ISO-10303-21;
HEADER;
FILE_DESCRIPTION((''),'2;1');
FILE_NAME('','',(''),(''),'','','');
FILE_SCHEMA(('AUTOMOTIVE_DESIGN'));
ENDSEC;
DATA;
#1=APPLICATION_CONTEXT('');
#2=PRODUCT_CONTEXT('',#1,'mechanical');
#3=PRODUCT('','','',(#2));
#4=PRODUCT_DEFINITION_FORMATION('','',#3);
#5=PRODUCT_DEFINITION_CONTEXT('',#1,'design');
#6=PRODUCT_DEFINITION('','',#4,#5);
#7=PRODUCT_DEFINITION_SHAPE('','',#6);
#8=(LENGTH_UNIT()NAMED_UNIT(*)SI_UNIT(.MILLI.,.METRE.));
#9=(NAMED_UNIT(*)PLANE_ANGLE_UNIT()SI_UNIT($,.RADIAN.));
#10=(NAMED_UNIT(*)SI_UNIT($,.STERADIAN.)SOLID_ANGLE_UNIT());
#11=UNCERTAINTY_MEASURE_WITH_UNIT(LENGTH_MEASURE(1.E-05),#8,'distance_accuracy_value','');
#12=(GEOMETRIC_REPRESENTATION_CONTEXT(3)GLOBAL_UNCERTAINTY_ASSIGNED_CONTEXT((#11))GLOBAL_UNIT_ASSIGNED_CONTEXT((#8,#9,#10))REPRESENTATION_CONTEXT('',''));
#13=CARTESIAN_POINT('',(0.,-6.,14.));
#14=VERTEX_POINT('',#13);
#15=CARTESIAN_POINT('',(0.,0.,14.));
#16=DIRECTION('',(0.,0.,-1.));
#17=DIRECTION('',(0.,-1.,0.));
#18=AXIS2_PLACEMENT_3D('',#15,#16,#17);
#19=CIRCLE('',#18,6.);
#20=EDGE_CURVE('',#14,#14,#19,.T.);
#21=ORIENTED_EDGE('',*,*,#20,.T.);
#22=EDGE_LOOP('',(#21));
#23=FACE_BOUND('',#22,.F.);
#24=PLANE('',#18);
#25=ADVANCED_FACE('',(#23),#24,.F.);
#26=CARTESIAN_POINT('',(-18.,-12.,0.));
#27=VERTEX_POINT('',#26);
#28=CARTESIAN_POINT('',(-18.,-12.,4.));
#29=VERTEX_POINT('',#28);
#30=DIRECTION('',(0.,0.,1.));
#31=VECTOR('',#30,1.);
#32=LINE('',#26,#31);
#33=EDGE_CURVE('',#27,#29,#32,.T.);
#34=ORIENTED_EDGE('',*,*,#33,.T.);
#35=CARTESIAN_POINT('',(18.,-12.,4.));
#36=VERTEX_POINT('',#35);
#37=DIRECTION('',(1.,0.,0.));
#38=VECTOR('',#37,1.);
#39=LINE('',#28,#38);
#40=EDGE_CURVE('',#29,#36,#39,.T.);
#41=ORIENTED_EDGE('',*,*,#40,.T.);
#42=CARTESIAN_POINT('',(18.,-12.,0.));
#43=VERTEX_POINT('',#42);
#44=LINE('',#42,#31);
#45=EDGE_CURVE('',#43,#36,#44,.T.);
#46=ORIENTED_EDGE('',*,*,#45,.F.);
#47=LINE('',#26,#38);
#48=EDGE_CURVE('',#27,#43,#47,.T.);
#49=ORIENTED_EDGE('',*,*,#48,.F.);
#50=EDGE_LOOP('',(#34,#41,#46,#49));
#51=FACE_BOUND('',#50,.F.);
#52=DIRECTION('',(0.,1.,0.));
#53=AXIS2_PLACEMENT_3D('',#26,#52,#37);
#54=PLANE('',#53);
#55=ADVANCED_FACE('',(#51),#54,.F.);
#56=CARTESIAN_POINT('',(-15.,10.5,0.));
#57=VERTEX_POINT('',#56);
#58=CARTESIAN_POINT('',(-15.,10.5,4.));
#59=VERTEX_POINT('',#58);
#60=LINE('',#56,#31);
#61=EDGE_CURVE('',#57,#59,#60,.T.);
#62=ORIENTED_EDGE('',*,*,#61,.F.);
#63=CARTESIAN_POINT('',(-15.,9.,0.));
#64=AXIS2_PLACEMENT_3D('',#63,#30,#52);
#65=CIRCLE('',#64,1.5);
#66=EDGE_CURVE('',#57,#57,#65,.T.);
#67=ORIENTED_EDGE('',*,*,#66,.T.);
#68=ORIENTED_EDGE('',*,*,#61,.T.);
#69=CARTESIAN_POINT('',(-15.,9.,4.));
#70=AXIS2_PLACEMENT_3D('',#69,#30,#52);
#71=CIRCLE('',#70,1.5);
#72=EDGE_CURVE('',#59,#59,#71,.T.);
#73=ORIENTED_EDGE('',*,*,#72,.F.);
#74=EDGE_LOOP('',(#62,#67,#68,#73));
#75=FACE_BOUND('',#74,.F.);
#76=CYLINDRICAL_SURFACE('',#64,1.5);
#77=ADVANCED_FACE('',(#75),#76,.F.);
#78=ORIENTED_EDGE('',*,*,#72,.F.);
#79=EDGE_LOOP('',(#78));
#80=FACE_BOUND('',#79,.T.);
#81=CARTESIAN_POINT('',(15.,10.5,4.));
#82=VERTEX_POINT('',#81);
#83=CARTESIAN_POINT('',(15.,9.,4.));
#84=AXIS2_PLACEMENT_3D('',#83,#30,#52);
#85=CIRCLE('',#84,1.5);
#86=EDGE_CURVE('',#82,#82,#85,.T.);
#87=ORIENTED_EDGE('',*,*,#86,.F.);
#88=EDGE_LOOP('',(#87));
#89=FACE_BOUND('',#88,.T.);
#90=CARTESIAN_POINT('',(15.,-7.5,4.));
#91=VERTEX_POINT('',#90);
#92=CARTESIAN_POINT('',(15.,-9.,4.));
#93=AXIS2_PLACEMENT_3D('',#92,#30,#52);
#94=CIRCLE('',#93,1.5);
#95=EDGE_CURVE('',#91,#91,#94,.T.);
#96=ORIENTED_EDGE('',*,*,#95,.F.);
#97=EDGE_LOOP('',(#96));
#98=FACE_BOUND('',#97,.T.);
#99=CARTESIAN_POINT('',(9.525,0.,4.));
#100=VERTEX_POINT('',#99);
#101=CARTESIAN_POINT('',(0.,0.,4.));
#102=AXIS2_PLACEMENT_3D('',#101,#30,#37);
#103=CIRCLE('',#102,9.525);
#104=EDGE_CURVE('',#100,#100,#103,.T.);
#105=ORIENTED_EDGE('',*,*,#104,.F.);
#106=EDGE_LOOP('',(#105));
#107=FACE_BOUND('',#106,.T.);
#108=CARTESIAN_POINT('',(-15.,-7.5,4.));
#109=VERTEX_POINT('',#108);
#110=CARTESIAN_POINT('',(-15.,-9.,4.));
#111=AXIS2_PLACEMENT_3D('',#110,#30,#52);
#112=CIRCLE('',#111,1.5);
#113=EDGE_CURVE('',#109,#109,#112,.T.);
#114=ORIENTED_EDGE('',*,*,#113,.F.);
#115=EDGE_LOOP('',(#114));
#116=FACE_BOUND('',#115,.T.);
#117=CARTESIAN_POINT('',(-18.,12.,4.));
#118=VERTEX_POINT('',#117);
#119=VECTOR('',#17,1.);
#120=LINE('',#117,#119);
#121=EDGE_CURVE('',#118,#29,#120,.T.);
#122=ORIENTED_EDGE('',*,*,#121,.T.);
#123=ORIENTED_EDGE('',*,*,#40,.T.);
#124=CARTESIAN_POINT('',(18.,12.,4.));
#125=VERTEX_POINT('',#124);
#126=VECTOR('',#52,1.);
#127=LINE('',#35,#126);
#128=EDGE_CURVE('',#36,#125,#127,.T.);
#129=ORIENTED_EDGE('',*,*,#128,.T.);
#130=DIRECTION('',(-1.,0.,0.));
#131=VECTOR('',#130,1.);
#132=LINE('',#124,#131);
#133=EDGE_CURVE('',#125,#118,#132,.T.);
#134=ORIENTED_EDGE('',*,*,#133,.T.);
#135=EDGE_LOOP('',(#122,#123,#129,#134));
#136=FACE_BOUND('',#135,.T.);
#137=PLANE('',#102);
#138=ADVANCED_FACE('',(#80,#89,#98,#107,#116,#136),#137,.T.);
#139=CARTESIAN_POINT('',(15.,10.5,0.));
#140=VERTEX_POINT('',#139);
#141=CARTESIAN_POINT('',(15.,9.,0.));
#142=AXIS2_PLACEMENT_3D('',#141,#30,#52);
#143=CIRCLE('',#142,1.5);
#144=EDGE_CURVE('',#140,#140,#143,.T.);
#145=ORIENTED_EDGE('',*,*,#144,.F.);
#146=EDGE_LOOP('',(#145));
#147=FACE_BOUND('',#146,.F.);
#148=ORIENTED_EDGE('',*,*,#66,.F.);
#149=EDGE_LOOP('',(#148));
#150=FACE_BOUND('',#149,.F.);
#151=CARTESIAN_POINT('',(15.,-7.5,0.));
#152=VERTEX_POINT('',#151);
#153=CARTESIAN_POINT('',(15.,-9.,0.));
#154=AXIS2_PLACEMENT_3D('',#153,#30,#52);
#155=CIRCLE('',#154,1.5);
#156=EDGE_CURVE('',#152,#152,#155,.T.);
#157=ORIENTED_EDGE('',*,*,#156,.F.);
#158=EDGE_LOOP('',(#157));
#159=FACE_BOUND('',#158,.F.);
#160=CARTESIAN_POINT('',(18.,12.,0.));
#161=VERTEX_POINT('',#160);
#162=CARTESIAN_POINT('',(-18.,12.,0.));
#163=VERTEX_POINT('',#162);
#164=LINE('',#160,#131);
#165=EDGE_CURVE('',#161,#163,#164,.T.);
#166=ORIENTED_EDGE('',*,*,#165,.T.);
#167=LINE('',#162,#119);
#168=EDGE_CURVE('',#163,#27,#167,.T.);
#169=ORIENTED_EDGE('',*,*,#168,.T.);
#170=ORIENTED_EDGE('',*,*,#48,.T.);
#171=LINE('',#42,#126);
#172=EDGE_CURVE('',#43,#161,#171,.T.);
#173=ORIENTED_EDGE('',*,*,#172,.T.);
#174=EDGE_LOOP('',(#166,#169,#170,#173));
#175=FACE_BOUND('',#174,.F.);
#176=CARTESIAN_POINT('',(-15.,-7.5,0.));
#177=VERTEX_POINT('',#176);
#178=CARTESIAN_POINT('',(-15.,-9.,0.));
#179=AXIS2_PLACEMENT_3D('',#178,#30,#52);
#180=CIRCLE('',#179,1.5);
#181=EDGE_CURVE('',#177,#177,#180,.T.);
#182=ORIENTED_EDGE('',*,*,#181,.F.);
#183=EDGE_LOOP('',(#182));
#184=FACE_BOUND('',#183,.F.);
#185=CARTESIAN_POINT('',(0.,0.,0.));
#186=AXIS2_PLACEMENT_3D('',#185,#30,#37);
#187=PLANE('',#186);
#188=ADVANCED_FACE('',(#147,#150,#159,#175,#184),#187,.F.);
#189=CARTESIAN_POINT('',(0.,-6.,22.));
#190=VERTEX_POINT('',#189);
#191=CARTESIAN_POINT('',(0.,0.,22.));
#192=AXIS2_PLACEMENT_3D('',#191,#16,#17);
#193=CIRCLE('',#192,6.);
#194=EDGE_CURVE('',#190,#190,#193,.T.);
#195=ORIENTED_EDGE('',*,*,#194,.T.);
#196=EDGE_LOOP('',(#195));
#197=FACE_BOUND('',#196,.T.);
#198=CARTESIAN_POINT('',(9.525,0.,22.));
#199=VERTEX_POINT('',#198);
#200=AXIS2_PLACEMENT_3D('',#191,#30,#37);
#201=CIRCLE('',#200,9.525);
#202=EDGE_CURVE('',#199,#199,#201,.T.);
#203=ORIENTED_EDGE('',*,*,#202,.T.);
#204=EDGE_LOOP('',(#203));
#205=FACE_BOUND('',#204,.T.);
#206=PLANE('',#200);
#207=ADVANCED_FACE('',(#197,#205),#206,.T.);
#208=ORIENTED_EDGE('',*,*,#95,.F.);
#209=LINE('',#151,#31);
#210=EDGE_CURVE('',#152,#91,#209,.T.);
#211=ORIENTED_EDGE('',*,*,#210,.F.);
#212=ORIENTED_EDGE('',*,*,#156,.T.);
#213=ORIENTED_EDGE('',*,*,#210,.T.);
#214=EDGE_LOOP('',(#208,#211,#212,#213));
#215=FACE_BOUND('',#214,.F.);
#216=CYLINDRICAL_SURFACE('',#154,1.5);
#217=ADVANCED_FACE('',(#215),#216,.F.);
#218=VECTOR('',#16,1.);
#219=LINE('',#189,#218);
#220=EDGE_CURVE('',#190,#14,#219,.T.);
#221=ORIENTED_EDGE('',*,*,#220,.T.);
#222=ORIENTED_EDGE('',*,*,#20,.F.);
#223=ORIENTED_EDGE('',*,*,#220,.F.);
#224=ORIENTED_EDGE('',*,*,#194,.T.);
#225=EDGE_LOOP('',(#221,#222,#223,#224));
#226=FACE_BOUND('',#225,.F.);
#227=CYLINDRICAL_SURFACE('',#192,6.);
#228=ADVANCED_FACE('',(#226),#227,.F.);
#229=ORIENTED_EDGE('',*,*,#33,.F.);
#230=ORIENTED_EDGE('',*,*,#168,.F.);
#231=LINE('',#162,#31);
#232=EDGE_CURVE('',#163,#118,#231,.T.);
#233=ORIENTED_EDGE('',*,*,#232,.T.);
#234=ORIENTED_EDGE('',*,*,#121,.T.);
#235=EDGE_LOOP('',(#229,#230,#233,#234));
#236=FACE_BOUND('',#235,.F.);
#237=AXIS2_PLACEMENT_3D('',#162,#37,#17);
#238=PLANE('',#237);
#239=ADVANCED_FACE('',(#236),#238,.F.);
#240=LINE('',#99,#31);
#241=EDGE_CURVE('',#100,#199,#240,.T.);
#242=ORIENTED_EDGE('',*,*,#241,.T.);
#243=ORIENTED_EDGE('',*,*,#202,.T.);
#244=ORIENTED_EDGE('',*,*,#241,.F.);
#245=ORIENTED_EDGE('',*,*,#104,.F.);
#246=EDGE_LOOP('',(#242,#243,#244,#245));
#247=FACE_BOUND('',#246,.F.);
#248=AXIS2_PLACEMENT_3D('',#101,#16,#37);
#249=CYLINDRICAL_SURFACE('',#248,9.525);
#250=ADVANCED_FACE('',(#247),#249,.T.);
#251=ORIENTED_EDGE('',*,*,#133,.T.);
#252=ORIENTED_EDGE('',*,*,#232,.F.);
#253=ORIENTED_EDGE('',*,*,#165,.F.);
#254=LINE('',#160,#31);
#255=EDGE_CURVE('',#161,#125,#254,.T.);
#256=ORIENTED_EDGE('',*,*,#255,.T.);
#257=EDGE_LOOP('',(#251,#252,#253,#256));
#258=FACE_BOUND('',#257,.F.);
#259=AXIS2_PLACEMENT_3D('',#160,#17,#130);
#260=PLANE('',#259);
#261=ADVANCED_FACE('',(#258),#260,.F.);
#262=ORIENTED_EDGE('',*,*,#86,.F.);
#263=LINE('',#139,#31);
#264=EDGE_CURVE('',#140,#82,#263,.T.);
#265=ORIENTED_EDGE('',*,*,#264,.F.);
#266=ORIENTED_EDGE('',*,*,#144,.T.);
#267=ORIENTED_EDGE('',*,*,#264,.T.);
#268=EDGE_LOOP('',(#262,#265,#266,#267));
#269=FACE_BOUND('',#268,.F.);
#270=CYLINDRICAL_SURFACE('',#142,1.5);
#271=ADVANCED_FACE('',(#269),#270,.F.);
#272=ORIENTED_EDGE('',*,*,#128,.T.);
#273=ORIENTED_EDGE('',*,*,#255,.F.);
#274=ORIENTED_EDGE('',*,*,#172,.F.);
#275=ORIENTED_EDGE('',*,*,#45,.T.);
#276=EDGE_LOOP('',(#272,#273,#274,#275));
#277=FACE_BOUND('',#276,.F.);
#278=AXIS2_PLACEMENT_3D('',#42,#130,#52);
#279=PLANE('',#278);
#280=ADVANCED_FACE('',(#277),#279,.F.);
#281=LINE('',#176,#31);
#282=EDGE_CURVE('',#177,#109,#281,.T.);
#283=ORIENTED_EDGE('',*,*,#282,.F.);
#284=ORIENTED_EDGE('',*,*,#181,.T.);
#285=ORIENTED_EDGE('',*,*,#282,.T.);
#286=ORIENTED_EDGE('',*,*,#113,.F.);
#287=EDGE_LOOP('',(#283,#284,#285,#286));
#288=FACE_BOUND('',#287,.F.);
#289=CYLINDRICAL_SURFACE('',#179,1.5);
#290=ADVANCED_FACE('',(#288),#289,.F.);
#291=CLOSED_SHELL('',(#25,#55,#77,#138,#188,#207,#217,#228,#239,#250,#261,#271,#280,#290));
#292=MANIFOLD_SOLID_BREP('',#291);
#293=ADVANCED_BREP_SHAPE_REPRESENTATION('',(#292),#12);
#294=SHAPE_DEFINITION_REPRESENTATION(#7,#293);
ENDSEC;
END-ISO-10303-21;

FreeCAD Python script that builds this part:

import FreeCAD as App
import Part
import Sketcher
from FreeCAD import Vector
Q = App.Units.Quantity


def add_polygon(sketch, points):
    """Adds a closed chain of lines whose ends are joined by coincident constraints."""
    first, n = sketch.GeometryCount, len(points)
    for a, b in zip(points, points[1:] + points[:1]):
        sketch.addGeometry(Part.LineSegment(App.Vector(*a, 0), App.Vector(*b, 0)), False)
    for i in range(n):
        sketch.addConstraint(Sketcher.Constraint("Coincident", first + i, 2, first + (i + 1) % n, 1))

doc = App.newDocument("Part")
body = doc.addObject("PartDesign::Body", "Body")

# Sketch on XY plane
sketch1 = doc.addObject("Sketcher::SketchObject", "Sketch")
body.addObject(sketch1)
sketch1.AttachmentSupport = (doc.XY_Plane, [""])
sketch1.MapMode = "FlatFace"
add_polygon(sketch1, [(-18, 12), (-18, -12), (18, -12), (18, 12)])  # lines 0-3
sketch1.addConstraint([
    Sketcher.Constraint("Vertical", 0),
    Sketcher.Constraint("Horizontal", 1),
    Sketcher.Constraint("Vertical", 2),
    Sketcher.Constraint("Horizontal", 3),
    Sketcher.Constraint("Symmetric", 0, 2, 2, 2, -1, 1),
    Sketcher.Constraint("DistanceX", 1, 1, 1, 2, Q("36 mm")),
    Sketcher.Constraint("DistanceY", 0, 2, 0, 1, Q("24 mm")),
])
pad1 = doc.addObject("PartDesign::Pad", "Pad")
body.addObject(pad1)
pad1.Profile = sketch1
pad1.Length = 4

# Sketch on XY plane
sketch2 = doc.addObject("Sketcher::SketchObject", "Sketch001")
body.addObject(sketch2)
sketch2.AttachmentSupport = (doc.XY_Plane, [""])
sketch2.MapMode = "FlatFace"
sketch2.AttachmentOffset = App.Placement(Vector(0, 0, 4), App.Rotation())
sketch2.addGeometry(Part.Circle(Vector(0, 0, 0), Vector(0, 0, 1), 10), False)
sketch2.addConstraint([
    Sketcher.Constraint("Coincident", 0, 3, -1, 1),
    Sketcher.Constraint("Diameter", 0, Q("19.05 mm")),
])
pad2 = doc.addObject("PartDesign::Pad", "Pad001")
body.addObject(pad2)
pad2.Profile = sketch2
pad2.Length = 18

# Sketch on XY plane
sketch3 = doc.addObject("Sketcher::SketchObject", "Sketch002")
body.addObject(sketch3)
sketch3.AttachmentSupport = (doc.XY_Plane, [""])
sketch3.MapMode = "FlatFace"
sketch3.AttachmentOffset = App.Placement(Vector(0, 0, 22), App.Rotation())
sketch3.addGeometry(Part.Circle(Vector(0, 0, 0), Vector(0, 0, 1), 6), False)
sketch3.addConstraint([
    Sketcher.Constraint("Coincident", 0, 3, -1, 1),
    Sketcher.Constraint("Diameter", 0, Q("12 mm")),
])
doc.recompute()
hole = doc.addObject("PartDesign::Hole", "Hole")
body.addObject(hole)
hole.Profile = sketch3
hole.ThreadType = "None"
hole.Diameter = 12
hole.DepthType = "Dimension"
hole.Depth = 8
hole.DrillPoint = "Flat"

# Sketch on XY plane
sketch4 = doc.addObject("Sketcher::SketchObject", "Sketch003")
body.addObject(sketch4)
sketch4.AttachmentSupport = (doc.XY_Plane, [""])
sketch4.MapMode = "FlatFace"
sketch4.addGeometry([
    Part.Circle(Vector(15, 9, 0), Vector(0, 0, 1), 1.5),
    Part.Circle(Vector(15, -9, 0), Vector(0, 0, 1), 1.5),
    Part.Circle(Vector(-15, 9, 0), Vector(0, 0, 1), 1.5),
    Part.Circle(Vector(-15, -9, 0), Vector(0, 0, 1), 1.5),
], False)
sketch4.addConstraint([
    Sketcher.Constraint("Equal", 0, 1),
    Sketcher.Constraint("Equal", 1, 2),
    Sketcher.Constraint("Equal", 2, 3),
    Sketcher.Constraint("Symmetric", 1, 3, 2, 3, -1, 1),
    Sketcher.Constraint("Symmetric", 0, 3, 3, 3, -1, 1),
    Sketcher.Constraint("Symmetric", 0, 3, 2, 3, -2),
    Sketcher.Constraint("Diameter", 0, Q("3 mm")),
    Sketcher.Constraint("DistanceX", -1, 1, 0, 3, Q("15 mm")),
    Sketcher.Constraint("DistanceY", -1, 1, 0, 3, Q("9 mm")),
])
doc.recompute()
hole2 = doc.addObject("PartDesign::Hole", "Hole001")
body.addObject(hole2)
hole2.Profile = sketch4
hole2.ThreadType = "None"
hole2.Diameter = 3
hole2.DepthType = "Dimension"
hole2.Depth = 8
hole2.DrillPoint = "Angled"
hole2.DrillPointAngle = 118
hole2.Reversed = True

doc.recompute()
